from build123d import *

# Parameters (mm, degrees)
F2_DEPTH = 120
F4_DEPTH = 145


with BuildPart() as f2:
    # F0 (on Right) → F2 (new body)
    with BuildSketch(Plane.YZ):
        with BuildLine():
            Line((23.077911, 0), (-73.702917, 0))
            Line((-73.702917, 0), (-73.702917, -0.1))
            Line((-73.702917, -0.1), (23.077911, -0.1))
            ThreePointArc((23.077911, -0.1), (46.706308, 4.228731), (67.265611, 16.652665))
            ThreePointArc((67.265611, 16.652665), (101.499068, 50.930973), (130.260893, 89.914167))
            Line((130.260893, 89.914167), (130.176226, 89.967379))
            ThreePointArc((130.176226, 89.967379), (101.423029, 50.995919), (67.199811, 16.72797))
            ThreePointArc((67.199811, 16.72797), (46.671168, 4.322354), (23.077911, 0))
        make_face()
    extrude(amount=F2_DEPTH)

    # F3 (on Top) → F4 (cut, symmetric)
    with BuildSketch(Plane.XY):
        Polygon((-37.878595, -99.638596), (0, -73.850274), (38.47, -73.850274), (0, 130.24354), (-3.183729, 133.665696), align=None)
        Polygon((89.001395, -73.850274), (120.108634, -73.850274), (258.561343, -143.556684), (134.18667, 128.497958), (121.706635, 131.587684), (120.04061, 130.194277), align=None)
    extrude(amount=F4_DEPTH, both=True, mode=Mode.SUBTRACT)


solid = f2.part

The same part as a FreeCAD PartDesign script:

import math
import FreeCAD as App
import Part
import Sketcher

V = App.Vector
Q = App.Units.Quantity

doc = App.newDocument("Part")
body = doc.addObject("PartDesign::Body", "Body")

# Sketch on YZ plane
sketch1 = doc.addObject("Sketcher::SketchObject", "Sketch")
body.addObject(sketch1)
sketch1.AttachmentSupport = (doc.YZ_Plane, [""])
sketch1.MapMode = "FlatFace"
sketch1.addGeometry(Part.LineSegment(V(23.08, 0, 0), V(-73.7, 0, 0)), False)
sketch1.addGeometry(Part.LineSegment(V(-73.7, 0, 0), V(-73.7, -0.1, 0)), False)
sketch1.addGeometry(Part.LineSegment(V(-73.7, -0.1, 0), V(23.08, -0.1, 0)), False)
sketch1.addGeometry(Part.ArcOfCircle(Part.Circle(V(23.08, 66.55, 0), V(0, 0, 1), 66.65), math.radians(-90), math.radians(-48)), False)
sketch1.addGeometry(Part.ArcOfCircle(Part.Circle(V(-145.1, 262.97, 0), V(0, 0, 1), 325.23), math.radians(-49.23), math.radians(-32.15)), False)
sketch1.addGeometry(Part.LineSegment(V(130.26, 89.91, 0), V(130.18, 89.97, 0)), False)
sketch1.addGeometry(Part.ArcOfCircle(Part.Circle(V(-145.1, 262.97, 0), V(0, 0, 1), 325.13), math.radians(-49.23), math.radians(-32.15)), False)
sketch1.addGeometry(Part.ArcOfCircle(Part.Circle(V(23.08, 66.55, 0), V(0, 0, 1), 66.55), math.radians(-90), math.radians(-48)), False)
sketch1.addConstraint(Sketcher.Constraint("Coincident", 0, 2, 1, 1))
sketch1.addConstraint(Sketcher.Constraint("Coincident", 1, 2, 2, 1))
sketch1.addConstraint(Sketcher.Constraint("Tangent", 2, 2, 3, 1))
sketch1.addConstraint(Sketcher.Constraint("Coincident", 3, 2, 4, 1))
sketch1.addConstraint(Sketcher.Constraint("Coincident", 4, 2, 5, 1))
sketch1.addConstraint(Sketcher.Constraint("Coincident", 5, 2, 6, 2))
sketch1.addConstraint(Sketcher.Constraint("Coincident", 6, 1, 7, 2))
sketch1.addConstraint(Sketcher.Constraint("Tangent", 7, 1, 0, 1))
sketch1.addConstraint(Sketcher.Constraint("Horizontal", 0))
sketch1.addConstraint(Sketcher.Constraint("Vertical", 1))
sketch1.addConstraint(Sketcher.Constraint("Horizontal", 2))
sketch1.addConstraint(Sketcher.Constraint("Coincident", 7, 3, 3, 3))
sketch1.addConstraint(Sketcher.Constraint("PointOnObject", 0, 2, -1))
sketch1.addConstraint(Sketcher.Constraint("DistanceY", 1, 2, 1, 1, Q("0.1 mm")))
sketch1.addConstraint(Sketcher.Constraint("Distance", 5, Q("0.1 mm")))
sketch1.addConstraint(Sketcher.Constraint("Radius", 3, Q("66.65222 mm")))
sketch1.addConstraint(Sketcher.Constraint("Radius", 6, Q("325.127261 mm")))
sketch1.addConstraint(Sketcher.Constraint("Radius", 4, Q("325.227363 mm")))
sketch1.addConstraint(Sketcher.Constraint("DistanceX", 0, 2, 0, 1, Q("96.780828 mm")))
sketch1.addConstraint(Sketcher.Constraint("DistanceX", 6, 3, 0, 2, Q("71.396499 mm")))
sketch1.addConstraint(Sketcher.Constraint("DistanceX", 2, 2, 3, 2, Q("44.1877 mm")))
sketch1.addConstraint(Sketcher.Constraint("DistanceY", 3, 2, 4, 2, Q("73.261502 mm")))
sketch1.addConstraint(Sketcher.Constraint("DistanceX", 6, 1, 3, 2, Q("0.0658 mm")))
sketch1.addConstraint(Sketcher.Constraint("DistanceX", -1, 1, 3, 3, Q("23.077911 mm")))
sketch1.addConstraint(Sketcher.Constraint("DistanceY", -1, 1, 5, 2, Q("89.967379 mm")))
pad1 = doc.addObject("PartDesign::Pad", "Pad")
body.addObject(pad1)
pad1.Profile = sketch1
pad1.Length = 120

# Sketch on XY plane
sketch2 = doc.addObject("Sketcher::SketchObject", "Sketch001")
body.addObject(sketch2)
sketch2.AttachmentSupport = (doc.XY_Plane, [""])
sketch2.MapMode = "FlatFace"
sketch2.addGeometry(Part.LineSegment(V(-37.9, -99.6, 0), V(0, -73.9, 0)), False)
sketch2.addGeometry(Part.LineSegment(V(0, -73.9, 0), V(38.5, -73.9, 0)), False)
sketch2.addGeometry(Part.LineSegment(V(38.5, -73.9, 0), V(0, 130.2, 0)), False)
sketch2.addGeometry(Part.LineSegment(V(0, 130.2, 0), V(-3.2, 133.7, 0)), False)
sketch2.addGeometry(Part.LineSegment(V(-3.2, 133.7, 0), V(-37.9, -99.6, 0)), False)
sketch2.addGeometry(Part.LineSegment(V(89, -73.9, 0), V(120.1, -73.9, 0)), False)
sketch2.addGeometry(Part.LineSegment(V(120.1, -73.9, 0), V(258.6, -143.6, 0)), False)
sketch2.addGeometry(Part.LineSegment(V(258.6, -143.6, 0), V(134.2, 128.5, 0)), False)
sketch2.addGeometry(Part.LineSegment(V(134.2, 128.5, 0), V(121.7, 131.6, 0)), False)
sketch2.addGeometry(Part.LineSegment(V(121.7, 131.6, 0), V(120, 130.2, 0)), False)
sketch2.addGeometry(Part.LineSegment(V(120, 130.2, 0), V(89, -73.9, 0)), False)
sketch2.addConstraint(Sketcher.Constraint("Coincident", 0, 2, 1, 1))
sketch2.addConstraint(Sketcher.Constraint("Coincident", 1, 2, 2, 1))
sketch2.addConstraint(Sketcher.Constraint("Coincident", 2, 2, 3, 1))
sketch2.addConstraint(Sketcher.Constraint("Coincident", 3, 2, 4, 1))
sketch2.addConstraint(Sketcher.Constraint("Coincident", 4, 2, 0, 1))
sketch2.addConstraint(Sketcher.Constraint("Coincident", 5, 2, 6, 1))
sketch2.addConstraint(Sketcher.Constraint("Coincident", 6, 2, 7, 1))
sketch2.addConstraint(Sketcher.Constraint("Coincident", 7, 2, 8, 1))
sketch2.addConstraint(Sketcher.Constraint("Coincident", 8, 2, 9, 1))
sketch2.addConstraint(Sketcher.Constraint("Coincident", 9, 2, 10, 1))
sketch2.addConstraint(Sketcher.Constraint("Coincident", 10, 2, 5, 1))
sketch2.addConstraint(Sketcher.Constraint("Horizontal", 1))
sketch2.addConstraint(Sketcher.Constraint("Horizontal", 5))
sketch2.addConstraint(Sketcher.Constraint("PointOnObject", 0, 2, -2))
sketch2.addConstraint(Sketcher.Constraint("PointOnObject", 2, 2, -2))
sketch2.addConstraint(Sketcher.Constraint("Horizontal", 1, 2, 5, 2))
sketch2.addConstraint(Sketcher.Constraint("DistanceX", 1, 1, 1, 2, Q("38.47 mm")))
sketch2.addConstraint(Sketcher.Constraint("DistanceX", 5, 2, 8, 2, Q("1.598001 mm")))
sketch2.addConstraint(Sketcher.Constraint("DistanceX", 5, 1, 5, 2, Q("31.107239 mm")))
sketch2.addConstraint(Sketcher.Constraint("DistanceX", 3, 2, 7, 2, Q("137.370399 mm")))
sketch2.addConstraint(Sketcher.Constraint("Distance", 2, Q("207.687809 mm")))
sketch2.addConstraint(Sketcher.Constraint("Distance", 10, Q("206.391889 mm")))
sketch2.addConstraint(Sketcher.Constraint("DistanceY", -1, 1, 2, 2, Q("130.24354 mm")))
sketch2.addConstraint(Sketcher.Constraint("DistanceX", 3, 2, -1, 1, Q("3.183729 mm")))
sketch2.addConstraint(Sketcher.Constraint("DistanceY", -1, 1, 7, 2, Q("128.497958 mm")))
sketch2.addConstraint(Sketcher.Constraint("DistanceX", -1, 1, 9, 2, Q("120.04061 mm")))
sketch2.addConstraint(Sketcher.Constraint("DistanceY", 0, 2, 3, 2, Q("207.51597 mm")))
sketch2.addConstraint(Sketcher.Constraint("DistanceY", 4, 2, 3, 2, Q("233.304292 mm")))
sketch2.addConstraint(Sketcher.Constraint("DistanceX", 4, 2, 5, 2, Q("157.987229 mm")))
sketch2.addConstraint(Sketcher.Constraint("DistanceX", 5, 2, 6, 2, Q("138.452709 mm")))
sketch2.addConstraint(Sketcher.Constraint("DistanceY", 6, 2, 5, 2, Q("69.70641 mm")))
sketch2.addConstraint(Sketcher.Constraint("DistanceY", 7, 2, 9, 2, Q("1.696319 mm")))
sketch2.addConstraint(Sketcher.Constraint("Distance", 8, Q("12.856815 mm")))
pocket1 = doc.addObject("PartDesign::Pocket", "Pocket")
body.addObject(pocket1)
pocket1.Profile = sketch2
pocket1.Length = 290
pocket1.Midplane = True

doc.recompute()
